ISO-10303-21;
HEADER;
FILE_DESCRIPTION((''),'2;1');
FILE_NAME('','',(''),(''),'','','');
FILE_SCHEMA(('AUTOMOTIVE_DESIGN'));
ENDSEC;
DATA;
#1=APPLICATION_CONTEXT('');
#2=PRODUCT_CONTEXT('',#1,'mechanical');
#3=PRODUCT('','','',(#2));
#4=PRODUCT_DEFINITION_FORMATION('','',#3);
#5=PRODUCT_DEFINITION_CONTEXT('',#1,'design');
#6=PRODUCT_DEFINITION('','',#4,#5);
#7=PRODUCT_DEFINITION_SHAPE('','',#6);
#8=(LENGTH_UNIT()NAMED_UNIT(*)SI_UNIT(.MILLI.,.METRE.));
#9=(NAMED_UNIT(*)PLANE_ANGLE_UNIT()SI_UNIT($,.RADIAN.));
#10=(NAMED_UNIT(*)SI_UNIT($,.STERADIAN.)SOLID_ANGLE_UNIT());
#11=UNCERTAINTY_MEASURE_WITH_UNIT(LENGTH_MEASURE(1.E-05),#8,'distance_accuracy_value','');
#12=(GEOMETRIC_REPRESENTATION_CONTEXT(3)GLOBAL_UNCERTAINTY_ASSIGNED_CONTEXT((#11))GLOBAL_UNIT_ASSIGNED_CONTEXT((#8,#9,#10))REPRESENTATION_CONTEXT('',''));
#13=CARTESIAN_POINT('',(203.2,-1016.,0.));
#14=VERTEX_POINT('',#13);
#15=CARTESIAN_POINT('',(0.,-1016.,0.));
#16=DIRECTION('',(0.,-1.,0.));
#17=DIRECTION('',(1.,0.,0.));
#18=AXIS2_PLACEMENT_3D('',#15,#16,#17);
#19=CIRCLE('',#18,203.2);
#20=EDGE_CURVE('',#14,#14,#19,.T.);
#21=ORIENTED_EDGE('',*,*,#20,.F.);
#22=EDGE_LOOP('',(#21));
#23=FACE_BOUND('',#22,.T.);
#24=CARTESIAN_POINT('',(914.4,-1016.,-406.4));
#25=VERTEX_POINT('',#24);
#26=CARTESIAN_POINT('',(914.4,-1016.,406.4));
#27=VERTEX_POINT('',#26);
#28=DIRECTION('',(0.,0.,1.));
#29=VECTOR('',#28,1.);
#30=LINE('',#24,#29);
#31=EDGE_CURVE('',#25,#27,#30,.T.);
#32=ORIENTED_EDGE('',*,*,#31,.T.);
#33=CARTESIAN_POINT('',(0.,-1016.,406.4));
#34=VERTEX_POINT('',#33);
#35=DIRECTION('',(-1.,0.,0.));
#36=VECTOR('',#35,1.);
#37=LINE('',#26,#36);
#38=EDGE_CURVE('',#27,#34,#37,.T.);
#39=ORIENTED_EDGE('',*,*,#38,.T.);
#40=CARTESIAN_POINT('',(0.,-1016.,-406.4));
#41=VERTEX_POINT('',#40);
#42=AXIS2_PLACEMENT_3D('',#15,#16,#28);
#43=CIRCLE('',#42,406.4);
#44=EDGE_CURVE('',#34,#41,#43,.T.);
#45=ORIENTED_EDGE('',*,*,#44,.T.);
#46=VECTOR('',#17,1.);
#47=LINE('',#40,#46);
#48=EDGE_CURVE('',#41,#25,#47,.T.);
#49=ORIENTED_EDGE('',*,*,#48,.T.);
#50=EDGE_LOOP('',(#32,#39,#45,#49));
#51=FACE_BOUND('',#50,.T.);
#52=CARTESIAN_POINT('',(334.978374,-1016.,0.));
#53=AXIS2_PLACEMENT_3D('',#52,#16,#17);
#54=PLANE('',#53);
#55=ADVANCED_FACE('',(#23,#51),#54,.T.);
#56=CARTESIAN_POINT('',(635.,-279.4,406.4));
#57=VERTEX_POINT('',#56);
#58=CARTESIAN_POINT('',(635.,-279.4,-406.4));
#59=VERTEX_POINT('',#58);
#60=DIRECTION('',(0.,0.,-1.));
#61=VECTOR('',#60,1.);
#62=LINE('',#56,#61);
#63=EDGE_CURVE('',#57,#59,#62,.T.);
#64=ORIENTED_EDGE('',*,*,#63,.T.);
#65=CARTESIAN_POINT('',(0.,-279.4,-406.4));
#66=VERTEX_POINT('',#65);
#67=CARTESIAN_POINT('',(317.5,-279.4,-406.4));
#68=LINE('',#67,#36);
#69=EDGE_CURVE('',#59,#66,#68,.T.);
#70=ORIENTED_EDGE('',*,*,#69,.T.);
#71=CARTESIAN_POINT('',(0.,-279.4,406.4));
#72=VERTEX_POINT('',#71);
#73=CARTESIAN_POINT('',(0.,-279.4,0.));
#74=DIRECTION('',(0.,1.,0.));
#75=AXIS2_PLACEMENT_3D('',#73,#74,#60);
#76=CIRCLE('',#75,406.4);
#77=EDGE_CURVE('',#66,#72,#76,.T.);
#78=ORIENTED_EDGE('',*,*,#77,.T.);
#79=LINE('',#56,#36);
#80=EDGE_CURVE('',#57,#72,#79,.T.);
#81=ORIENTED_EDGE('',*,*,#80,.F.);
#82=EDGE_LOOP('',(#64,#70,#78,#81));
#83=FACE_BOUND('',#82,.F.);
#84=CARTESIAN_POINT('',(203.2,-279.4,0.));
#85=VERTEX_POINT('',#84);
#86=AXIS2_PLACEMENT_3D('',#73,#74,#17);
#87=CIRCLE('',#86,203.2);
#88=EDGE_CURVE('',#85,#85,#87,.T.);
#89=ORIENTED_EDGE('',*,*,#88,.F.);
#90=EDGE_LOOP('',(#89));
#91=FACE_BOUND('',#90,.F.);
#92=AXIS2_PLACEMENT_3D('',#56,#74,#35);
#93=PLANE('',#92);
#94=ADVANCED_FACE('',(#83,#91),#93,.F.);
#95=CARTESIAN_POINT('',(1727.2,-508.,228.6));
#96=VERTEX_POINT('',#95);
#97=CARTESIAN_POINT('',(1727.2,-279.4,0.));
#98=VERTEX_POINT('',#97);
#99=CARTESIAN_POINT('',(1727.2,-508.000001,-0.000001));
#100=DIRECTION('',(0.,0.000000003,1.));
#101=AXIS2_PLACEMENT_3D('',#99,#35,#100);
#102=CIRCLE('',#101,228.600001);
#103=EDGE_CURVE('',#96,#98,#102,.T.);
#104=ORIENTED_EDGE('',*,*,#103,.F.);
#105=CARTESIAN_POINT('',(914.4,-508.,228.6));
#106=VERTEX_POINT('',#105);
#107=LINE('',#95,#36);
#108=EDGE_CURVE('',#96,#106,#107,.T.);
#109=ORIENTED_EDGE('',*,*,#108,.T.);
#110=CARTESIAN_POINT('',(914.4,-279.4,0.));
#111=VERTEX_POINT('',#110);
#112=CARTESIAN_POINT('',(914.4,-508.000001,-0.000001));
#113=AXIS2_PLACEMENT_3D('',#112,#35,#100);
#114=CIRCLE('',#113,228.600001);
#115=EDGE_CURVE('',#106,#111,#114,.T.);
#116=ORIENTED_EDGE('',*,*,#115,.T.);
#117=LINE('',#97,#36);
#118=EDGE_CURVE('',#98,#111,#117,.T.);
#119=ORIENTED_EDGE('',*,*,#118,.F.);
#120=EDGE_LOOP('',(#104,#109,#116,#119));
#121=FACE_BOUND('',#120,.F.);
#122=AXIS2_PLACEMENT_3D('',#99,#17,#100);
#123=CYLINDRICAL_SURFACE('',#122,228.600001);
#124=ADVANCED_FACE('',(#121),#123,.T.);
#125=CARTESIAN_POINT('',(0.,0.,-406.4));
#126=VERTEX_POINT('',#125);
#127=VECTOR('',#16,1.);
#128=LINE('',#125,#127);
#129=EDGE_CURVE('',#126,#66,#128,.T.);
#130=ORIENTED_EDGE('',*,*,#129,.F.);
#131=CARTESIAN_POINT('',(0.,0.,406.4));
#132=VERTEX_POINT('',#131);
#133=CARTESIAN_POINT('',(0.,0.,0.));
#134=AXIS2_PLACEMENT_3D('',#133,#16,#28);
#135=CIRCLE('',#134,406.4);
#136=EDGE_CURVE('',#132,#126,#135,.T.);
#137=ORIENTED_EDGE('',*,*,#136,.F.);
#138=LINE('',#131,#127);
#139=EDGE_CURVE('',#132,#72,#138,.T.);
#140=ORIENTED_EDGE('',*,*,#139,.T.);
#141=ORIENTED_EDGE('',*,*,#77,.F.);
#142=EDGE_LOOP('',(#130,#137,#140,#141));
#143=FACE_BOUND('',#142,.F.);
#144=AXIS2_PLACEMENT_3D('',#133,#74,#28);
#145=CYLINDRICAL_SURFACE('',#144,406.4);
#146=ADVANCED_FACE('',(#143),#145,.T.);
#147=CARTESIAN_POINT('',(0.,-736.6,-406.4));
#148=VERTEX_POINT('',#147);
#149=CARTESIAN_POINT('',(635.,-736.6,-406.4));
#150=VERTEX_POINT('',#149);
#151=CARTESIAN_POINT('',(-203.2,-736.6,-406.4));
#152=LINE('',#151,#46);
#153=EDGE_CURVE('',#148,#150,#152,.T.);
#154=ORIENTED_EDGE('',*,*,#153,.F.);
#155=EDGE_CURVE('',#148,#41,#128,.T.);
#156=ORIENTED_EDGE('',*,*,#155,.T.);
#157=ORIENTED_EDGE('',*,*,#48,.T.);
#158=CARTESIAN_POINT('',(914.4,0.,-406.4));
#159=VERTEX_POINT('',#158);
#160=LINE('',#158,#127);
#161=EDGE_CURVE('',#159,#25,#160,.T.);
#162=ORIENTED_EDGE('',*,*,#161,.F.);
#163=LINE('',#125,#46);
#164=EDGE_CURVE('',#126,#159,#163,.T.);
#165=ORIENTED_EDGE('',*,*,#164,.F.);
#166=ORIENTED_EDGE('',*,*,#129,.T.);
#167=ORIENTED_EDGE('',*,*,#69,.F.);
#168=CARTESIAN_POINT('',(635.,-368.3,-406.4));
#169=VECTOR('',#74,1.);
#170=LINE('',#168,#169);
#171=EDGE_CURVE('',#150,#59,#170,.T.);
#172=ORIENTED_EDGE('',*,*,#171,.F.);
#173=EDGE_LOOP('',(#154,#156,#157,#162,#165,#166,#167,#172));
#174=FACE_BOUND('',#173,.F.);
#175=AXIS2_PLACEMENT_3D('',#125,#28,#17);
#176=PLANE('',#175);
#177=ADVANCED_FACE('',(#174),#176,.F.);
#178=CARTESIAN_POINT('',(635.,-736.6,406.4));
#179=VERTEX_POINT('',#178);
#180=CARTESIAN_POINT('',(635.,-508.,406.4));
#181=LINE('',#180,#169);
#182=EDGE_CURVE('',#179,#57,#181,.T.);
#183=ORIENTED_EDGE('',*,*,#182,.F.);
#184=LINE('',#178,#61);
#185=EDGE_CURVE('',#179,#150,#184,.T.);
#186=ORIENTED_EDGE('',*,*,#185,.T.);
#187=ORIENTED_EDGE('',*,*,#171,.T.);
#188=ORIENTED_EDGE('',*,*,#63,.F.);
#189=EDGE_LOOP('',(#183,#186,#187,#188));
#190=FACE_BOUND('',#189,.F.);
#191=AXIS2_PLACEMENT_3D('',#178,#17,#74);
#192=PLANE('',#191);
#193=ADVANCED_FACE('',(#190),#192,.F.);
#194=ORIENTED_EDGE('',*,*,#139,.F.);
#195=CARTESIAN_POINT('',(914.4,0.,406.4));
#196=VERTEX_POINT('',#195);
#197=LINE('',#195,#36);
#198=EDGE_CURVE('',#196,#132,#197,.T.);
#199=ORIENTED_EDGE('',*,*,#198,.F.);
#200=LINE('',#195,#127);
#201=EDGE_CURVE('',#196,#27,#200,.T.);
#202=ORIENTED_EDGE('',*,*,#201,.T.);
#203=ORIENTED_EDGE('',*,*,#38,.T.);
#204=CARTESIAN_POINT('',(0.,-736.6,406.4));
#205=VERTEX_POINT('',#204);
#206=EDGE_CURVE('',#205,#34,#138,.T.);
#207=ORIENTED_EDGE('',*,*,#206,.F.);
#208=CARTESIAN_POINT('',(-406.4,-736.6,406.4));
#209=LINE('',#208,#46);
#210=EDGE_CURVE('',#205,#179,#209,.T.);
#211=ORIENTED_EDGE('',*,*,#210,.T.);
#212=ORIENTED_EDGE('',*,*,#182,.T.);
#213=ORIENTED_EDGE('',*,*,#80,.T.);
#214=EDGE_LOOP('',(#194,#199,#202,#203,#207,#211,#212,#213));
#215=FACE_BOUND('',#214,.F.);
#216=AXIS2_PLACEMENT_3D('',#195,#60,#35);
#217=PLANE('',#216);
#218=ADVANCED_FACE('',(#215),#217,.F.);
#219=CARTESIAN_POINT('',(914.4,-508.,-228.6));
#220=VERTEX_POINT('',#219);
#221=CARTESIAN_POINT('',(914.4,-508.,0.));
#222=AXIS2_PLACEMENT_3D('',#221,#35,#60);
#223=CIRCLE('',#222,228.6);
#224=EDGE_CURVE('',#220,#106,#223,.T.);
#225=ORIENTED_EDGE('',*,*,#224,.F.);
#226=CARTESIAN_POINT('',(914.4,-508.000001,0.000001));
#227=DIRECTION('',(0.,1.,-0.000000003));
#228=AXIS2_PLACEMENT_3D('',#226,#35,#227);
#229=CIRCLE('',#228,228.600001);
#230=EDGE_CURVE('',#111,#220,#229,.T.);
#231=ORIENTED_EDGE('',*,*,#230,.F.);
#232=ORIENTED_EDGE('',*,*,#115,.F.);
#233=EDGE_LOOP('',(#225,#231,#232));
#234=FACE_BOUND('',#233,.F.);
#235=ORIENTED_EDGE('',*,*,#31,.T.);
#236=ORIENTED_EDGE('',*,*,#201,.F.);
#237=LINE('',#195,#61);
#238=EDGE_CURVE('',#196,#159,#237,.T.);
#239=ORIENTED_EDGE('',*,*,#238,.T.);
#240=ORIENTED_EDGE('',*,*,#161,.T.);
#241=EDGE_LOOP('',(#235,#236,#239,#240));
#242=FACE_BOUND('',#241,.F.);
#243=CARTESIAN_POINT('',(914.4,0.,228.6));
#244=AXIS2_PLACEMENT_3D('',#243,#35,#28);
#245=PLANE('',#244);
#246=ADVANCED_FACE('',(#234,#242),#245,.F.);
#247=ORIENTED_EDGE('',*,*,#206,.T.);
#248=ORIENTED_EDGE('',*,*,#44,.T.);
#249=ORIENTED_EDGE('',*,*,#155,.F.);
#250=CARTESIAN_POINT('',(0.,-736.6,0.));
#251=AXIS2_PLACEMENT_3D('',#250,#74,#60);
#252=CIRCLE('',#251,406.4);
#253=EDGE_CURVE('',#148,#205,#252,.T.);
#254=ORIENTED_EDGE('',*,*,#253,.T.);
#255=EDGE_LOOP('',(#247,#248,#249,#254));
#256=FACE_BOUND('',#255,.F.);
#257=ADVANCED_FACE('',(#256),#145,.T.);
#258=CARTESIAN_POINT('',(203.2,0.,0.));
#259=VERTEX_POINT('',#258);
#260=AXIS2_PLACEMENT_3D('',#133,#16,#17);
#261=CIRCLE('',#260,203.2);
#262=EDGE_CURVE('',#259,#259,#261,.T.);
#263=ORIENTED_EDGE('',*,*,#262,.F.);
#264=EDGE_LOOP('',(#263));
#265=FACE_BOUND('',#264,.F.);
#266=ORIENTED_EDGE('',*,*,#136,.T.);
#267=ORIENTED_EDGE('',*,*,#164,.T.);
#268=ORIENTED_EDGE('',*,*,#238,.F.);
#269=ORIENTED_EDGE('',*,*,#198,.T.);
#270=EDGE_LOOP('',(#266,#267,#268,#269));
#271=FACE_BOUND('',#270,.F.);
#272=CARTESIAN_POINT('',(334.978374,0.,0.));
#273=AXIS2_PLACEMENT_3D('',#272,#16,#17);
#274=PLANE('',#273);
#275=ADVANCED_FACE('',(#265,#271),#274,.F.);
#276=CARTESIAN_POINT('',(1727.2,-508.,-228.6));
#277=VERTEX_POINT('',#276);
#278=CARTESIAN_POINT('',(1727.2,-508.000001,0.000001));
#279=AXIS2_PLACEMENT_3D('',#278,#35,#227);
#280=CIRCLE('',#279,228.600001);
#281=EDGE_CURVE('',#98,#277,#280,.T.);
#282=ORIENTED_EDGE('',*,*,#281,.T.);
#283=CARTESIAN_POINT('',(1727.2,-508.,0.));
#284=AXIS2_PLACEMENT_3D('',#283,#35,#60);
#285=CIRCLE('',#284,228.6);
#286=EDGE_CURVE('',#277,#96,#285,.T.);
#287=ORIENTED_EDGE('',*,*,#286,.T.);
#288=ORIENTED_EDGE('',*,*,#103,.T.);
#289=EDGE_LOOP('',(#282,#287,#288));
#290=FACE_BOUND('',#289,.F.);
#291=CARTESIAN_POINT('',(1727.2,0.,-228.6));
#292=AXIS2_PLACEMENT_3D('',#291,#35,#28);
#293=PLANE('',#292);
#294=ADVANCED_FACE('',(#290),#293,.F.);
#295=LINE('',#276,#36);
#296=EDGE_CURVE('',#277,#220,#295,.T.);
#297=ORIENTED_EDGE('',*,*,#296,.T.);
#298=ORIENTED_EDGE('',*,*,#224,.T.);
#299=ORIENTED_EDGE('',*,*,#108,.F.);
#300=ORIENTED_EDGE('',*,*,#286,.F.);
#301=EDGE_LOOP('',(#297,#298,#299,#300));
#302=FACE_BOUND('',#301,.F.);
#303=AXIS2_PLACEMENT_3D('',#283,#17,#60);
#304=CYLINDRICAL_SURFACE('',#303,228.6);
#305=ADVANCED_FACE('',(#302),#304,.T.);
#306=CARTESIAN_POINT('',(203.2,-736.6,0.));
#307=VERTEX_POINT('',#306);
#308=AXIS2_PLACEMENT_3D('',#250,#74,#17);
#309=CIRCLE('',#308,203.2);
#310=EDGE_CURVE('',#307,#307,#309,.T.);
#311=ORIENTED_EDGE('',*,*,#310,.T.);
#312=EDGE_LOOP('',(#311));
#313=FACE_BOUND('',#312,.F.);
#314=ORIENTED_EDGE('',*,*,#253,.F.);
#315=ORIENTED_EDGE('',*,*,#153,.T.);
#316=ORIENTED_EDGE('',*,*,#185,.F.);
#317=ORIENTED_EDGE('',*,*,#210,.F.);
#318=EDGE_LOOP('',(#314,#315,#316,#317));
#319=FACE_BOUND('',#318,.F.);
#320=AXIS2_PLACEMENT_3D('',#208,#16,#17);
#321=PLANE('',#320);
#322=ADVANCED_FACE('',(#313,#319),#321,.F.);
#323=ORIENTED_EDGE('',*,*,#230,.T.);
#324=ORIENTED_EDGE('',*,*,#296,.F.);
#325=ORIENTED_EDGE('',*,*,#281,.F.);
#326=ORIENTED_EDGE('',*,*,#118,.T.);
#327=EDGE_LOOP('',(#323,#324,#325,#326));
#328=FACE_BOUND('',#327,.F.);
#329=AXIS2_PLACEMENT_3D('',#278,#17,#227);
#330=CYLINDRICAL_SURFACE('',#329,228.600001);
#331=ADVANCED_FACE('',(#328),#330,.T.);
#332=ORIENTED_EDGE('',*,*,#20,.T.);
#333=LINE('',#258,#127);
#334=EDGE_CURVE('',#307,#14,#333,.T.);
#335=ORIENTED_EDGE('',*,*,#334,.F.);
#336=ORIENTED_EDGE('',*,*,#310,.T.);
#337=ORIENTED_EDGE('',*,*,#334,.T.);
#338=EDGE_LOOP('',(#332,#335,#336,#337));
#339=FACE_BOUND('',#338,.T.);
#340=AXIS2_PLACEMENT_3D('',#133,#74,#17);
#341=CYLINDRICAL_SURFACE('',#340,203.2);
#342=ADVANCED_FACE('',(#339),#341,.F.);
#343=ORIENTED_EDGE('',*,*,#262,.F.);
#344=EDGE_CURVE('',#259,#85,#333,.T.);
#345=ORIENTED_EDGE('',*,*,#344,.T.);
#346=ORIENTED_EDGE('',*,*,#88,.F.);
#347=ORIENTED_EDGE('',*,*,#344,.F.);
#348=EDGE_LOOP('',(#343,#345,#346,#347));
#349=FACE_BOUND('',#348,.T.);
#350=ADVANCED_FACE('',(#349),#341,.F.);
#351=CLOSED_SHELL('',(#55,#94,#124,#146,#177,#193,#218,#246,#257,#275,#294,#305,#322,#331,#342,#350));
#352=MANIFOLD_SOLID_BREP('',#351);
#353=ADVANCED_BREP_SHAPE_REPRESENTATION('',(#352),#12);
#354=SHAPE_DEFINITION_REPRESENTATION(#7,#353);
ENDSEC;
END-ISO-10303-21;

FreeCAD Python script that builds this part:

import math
import FreeCAD as App
import Part
import Sketcher
from FreeCAD import Vector
Q = App.Units.Quantity

doc = App.newDocument("Part")
body = doc.addObject("PartDesign::Body", "Body")

# Sketch on XZ plane
sketch1 = body.newObject("Sketcher::SketchObject", "Sketch")
sketch1.AttachmentSupport = (doc.getObject("XZ_Plane"), [""])
sketch1.MapMode = "FlatFace"
sketch1.addGeometry([
    Part.LineSegment(Vector(914, 406, 0), Vector(0, 406, 0)),  # 0
    Part.ArcOfCircle(Part.Circle(Vector(0, 0, 0), Vector(0, 0, 1), 406), math.radians(90), math.radians(270)),  # 1
    Part.LineSegment(Vector(0, -406, 0), Vector(914, -406, 0)),  # 2
    Part.LineSegment(Vector(914, -406, 0), Vector(914, -229, 0)),  # 3
    Part.LineSegment(Vector(914, -229, 0), Vector(1727, -229, 0)),  # 4
    Part.LineSegment(Vector(1727, -229, 0), Vector(1727, 229, 0)),  # 5
    Part.LineSegment(Vector(1727, 229, 0), Vector(914, 229, 0)),  # 6
    Part.LineSegment(Vector(914, 229, 0), Vector(914, 406, 0)),  # 7
    Part.Circle(Vector(0, 0, 0), Vector(0, 0, 1), 203),  # 8
], False)
sketch1.addConstraint([
    Sketcher.Constraint("Tangent", 0, 2, 1, 1),
    Sketcher.Constraint("Tangent", 1, 2, 2, 1),
    Sketcher.Constraint("Coincident", 2, 2, 3, 1),
    Sketcher.Constraint("Coincident", 3, 2, 4, 1),
    Sketcher.Constraint("Coincident", 4, 2, 5, 1),
    Sketcher.Constraint("Coincident", 5, 2, 6, 1),
    Sketcher.Constraint("Coincident", 6, 2, 7, 1),
    Sketcher.Constraint("Coincident", 7, 2, 0, 1),
    Sketcher.Constraint("Horizontal", 0),
    Sketcher.Constraint("Horizontal", 2),
    Sketcher.Constraint("Vertical", 3),
    Sketcher.Constraint("Horizontal", 4),
    Sketcher.Constraint("Vertical", 5),
    Sketcher.Constraint("Horizontal", 6),
    Sketcher.Constraint("Vertical", 7),
    Sketcher.Constraint("Coincident", 1, 3, -1, 1),
    Sketcher.Constraint("Coincident", 8, 3, -1, 1),
    Sketcher.Constraint("Symmetric", 3, 2, 6, 2, -1),
    Sketcher.Constraint("Diameter", 8, Q("16 in")),
    Sketcher.Constraint("Radius", 1, Q("16 in")),
    Sketcher.Constraint("DistanceX", 0, 2, 0, 1, Q("36 in")),
    Sketcher.Constraint("DistanceX", 4, 1, 4, 2, Q("32 in")),
    Sketcher.Constraint("DistanceY", 3, 1, 3, 2, Q("7 in")),
])
pad1 = body.newObject("PartDesign::Pad", "Pad")
pad1.Profile = sketch1
pad1.Length = Q("40 in")

# Sketch on XY plane
sketch2 = body.newObject("Sketcher::SketchObject", "Sketch001")
sketch2.AttachmentSupport = (doc.getObject("XY_Plane"), [""])
sketch2.MapMode = "FlatFace"
sketch2.AttachmentOffset = App.Placement(Vector(0, 0, 16 * 25.4), App.Rotation())
sketch2.addGeometry([
    Part.LineSegment(Vector(635, -737, 0), Vector(635, -279, 0)),
    Part.LineSegment(Vector(635, -279, 0), Vector(-406, -279, 0)),
    Part.LineSegment(Vector(-406, -279, 0), Vector(-406, -737, 0)),
    Part.LineSegment(Vector(-406, -737, 0), Vector(635, -737, 0)),
], False)
sketch2.addConstraint([
    Sketcher.Constraint("Coincident", 0, 2, 1, 1),
    Sketcher.Constraint("Coincident", 1, 2, 2, 1),
    Sketcher.Constraint("Coincident", 2, 2, 3, 1),
    Sketcher.Constraint("Coincident", 3, 2, 0, 1),
    Sketcher.Constraint("Vertical", 0),
    Sketcher.Constraint("Horizontal", 1),
    Sketcher.Constraint("Vertical", 2),
    Sketcher.Constraint("Horizontal", 3),
    Sketcher.Constraint("DistanceX", 1, 2, 1, 1, Q("41 in")),
    Sketcher.Constraint("DistanceY", 0, 1, 0, 2, Q("18 in")),
    Sketcher.Constraint("DistanceX", -1, 1, 0, 2, Q("25 in")),
    Sketcher.Constraint("DistanceY", 0, 2, -1, 1, Q("11 in")),
])
pocket1 = body.newObject("PartDesign::Pocket", "Pocket")
pocket1.Profile = sketch2
pocket1.Type = "ThroughAll"

# Sketch on YZ plane
sketch3 = body.newObject("Sketcher::SketchObject", "Sketch002")
sketch3.AttachmentSupport = (doc.getObject("YZ_Plane"), [""])
sketch3.MapMode = "FlatFace"
sketch3.AttachmentOffset = App.Placement(Vector(0, 0, 68 * 25.4), App.Rotation())
sketch3.addGeometry([
    Part.ArcOfCircle(Part.Circle(Vector(-508, 0, 0), Vector(0, 0, 1), 229), math.radians(90), math.radians(270)),  # 0
    Part.LineSegment(Vector(-508, 229, 0), Vector(-1016, 229, 0)),  # 1
    Part.LineSegment(Vector(-1016, 229, 0), Vector(-1016, -229, 0)),  # 2
    Part.LineSegment(Vector(-1016, -229, 0), Vector(-508, -229, 0)),  # 3
    Part.ArcOfCircle(Part.Circle(Vector(-508, 0, 0), Vector(0, 0, 1), 229), math.radians(0), math.radians(90)),  # 4
    Part.ArcOfCircle(Part.Circle(Vector(-508, 0, 0), Vector(0, 0, 1), 229), math.radians(-90), math.radians(0)),  # 5
    Part.LineSegment(Vector(-508, -229, 0), Vector(0, -229, 0)),  # 6
    Part.LineSegment(Vector(0, -229, 0), Vector(0, 229, 0)),  # 7
    Part.LineSegment(Vector(0, 229, 0), Vector(-508, 229, 0)),  # 8
], False)
sketch3.addConstraint([
    Sketcher.Constraint("Tangent", 0, 1, 1, 1),
    Sketcher.Constraint("Coincident", 1, 2, 2, 1),
    Sketcher.Constraint("Coincident", 2, 2, 3, 1),
    Sketcher.Constraint("Tangent", 3, 2, 0, 2),
    Sketcher.Constraint("Tangent", 4, 1, 5, 2),
    Sketcher.Constraint("Tangent", 5, 1, 6, 1),
    Sketcher.Constraint("Coincident", 6, 2, 7, 1),
    Sketcher.Constraint("Coincident", 7, 2, 8, 1),
    Sketcher.Constraint("Tangent", 8, 2, 4, 2),
    Sketcher.Constraint("Horizontal", 1),
    Sketcher.Constraint("Vertical", 2),
    Sketcher.Constraint("Horizontal", 3),
    Sketcher.Constraint("Horizontal", 6),
    Sketcher.Constraint("Vertical", 7),
    Sketcher.Constraint("Horizontal", 8),
    Sketcher.Constraint("Coincident", 4, 3, 0, 3),
    Sketcher.Constraint("Coincident", 5, 1, 3, 2),
    Sketcher.Constraint("Symmetric", 6, 2, 7, 2, -1, 1),
    Sketcher.Constraint("PointOnObject", 4, 1, -1),
    Sketcher.Constraint("Equal", 3, 6),
    Sketcher.Constraint("Radius", 0, Q("9 in")),
    Sketcher.Constraint("DistanceX", 1, 2, 1, 1, Q("20 in")),
])
pocket2 = body.newObject("PartDesign::Pocket", "Pocket001")
pocket2.Profile = sketch3
pocket2.Length = Q("32 in")

doc.recompute()
